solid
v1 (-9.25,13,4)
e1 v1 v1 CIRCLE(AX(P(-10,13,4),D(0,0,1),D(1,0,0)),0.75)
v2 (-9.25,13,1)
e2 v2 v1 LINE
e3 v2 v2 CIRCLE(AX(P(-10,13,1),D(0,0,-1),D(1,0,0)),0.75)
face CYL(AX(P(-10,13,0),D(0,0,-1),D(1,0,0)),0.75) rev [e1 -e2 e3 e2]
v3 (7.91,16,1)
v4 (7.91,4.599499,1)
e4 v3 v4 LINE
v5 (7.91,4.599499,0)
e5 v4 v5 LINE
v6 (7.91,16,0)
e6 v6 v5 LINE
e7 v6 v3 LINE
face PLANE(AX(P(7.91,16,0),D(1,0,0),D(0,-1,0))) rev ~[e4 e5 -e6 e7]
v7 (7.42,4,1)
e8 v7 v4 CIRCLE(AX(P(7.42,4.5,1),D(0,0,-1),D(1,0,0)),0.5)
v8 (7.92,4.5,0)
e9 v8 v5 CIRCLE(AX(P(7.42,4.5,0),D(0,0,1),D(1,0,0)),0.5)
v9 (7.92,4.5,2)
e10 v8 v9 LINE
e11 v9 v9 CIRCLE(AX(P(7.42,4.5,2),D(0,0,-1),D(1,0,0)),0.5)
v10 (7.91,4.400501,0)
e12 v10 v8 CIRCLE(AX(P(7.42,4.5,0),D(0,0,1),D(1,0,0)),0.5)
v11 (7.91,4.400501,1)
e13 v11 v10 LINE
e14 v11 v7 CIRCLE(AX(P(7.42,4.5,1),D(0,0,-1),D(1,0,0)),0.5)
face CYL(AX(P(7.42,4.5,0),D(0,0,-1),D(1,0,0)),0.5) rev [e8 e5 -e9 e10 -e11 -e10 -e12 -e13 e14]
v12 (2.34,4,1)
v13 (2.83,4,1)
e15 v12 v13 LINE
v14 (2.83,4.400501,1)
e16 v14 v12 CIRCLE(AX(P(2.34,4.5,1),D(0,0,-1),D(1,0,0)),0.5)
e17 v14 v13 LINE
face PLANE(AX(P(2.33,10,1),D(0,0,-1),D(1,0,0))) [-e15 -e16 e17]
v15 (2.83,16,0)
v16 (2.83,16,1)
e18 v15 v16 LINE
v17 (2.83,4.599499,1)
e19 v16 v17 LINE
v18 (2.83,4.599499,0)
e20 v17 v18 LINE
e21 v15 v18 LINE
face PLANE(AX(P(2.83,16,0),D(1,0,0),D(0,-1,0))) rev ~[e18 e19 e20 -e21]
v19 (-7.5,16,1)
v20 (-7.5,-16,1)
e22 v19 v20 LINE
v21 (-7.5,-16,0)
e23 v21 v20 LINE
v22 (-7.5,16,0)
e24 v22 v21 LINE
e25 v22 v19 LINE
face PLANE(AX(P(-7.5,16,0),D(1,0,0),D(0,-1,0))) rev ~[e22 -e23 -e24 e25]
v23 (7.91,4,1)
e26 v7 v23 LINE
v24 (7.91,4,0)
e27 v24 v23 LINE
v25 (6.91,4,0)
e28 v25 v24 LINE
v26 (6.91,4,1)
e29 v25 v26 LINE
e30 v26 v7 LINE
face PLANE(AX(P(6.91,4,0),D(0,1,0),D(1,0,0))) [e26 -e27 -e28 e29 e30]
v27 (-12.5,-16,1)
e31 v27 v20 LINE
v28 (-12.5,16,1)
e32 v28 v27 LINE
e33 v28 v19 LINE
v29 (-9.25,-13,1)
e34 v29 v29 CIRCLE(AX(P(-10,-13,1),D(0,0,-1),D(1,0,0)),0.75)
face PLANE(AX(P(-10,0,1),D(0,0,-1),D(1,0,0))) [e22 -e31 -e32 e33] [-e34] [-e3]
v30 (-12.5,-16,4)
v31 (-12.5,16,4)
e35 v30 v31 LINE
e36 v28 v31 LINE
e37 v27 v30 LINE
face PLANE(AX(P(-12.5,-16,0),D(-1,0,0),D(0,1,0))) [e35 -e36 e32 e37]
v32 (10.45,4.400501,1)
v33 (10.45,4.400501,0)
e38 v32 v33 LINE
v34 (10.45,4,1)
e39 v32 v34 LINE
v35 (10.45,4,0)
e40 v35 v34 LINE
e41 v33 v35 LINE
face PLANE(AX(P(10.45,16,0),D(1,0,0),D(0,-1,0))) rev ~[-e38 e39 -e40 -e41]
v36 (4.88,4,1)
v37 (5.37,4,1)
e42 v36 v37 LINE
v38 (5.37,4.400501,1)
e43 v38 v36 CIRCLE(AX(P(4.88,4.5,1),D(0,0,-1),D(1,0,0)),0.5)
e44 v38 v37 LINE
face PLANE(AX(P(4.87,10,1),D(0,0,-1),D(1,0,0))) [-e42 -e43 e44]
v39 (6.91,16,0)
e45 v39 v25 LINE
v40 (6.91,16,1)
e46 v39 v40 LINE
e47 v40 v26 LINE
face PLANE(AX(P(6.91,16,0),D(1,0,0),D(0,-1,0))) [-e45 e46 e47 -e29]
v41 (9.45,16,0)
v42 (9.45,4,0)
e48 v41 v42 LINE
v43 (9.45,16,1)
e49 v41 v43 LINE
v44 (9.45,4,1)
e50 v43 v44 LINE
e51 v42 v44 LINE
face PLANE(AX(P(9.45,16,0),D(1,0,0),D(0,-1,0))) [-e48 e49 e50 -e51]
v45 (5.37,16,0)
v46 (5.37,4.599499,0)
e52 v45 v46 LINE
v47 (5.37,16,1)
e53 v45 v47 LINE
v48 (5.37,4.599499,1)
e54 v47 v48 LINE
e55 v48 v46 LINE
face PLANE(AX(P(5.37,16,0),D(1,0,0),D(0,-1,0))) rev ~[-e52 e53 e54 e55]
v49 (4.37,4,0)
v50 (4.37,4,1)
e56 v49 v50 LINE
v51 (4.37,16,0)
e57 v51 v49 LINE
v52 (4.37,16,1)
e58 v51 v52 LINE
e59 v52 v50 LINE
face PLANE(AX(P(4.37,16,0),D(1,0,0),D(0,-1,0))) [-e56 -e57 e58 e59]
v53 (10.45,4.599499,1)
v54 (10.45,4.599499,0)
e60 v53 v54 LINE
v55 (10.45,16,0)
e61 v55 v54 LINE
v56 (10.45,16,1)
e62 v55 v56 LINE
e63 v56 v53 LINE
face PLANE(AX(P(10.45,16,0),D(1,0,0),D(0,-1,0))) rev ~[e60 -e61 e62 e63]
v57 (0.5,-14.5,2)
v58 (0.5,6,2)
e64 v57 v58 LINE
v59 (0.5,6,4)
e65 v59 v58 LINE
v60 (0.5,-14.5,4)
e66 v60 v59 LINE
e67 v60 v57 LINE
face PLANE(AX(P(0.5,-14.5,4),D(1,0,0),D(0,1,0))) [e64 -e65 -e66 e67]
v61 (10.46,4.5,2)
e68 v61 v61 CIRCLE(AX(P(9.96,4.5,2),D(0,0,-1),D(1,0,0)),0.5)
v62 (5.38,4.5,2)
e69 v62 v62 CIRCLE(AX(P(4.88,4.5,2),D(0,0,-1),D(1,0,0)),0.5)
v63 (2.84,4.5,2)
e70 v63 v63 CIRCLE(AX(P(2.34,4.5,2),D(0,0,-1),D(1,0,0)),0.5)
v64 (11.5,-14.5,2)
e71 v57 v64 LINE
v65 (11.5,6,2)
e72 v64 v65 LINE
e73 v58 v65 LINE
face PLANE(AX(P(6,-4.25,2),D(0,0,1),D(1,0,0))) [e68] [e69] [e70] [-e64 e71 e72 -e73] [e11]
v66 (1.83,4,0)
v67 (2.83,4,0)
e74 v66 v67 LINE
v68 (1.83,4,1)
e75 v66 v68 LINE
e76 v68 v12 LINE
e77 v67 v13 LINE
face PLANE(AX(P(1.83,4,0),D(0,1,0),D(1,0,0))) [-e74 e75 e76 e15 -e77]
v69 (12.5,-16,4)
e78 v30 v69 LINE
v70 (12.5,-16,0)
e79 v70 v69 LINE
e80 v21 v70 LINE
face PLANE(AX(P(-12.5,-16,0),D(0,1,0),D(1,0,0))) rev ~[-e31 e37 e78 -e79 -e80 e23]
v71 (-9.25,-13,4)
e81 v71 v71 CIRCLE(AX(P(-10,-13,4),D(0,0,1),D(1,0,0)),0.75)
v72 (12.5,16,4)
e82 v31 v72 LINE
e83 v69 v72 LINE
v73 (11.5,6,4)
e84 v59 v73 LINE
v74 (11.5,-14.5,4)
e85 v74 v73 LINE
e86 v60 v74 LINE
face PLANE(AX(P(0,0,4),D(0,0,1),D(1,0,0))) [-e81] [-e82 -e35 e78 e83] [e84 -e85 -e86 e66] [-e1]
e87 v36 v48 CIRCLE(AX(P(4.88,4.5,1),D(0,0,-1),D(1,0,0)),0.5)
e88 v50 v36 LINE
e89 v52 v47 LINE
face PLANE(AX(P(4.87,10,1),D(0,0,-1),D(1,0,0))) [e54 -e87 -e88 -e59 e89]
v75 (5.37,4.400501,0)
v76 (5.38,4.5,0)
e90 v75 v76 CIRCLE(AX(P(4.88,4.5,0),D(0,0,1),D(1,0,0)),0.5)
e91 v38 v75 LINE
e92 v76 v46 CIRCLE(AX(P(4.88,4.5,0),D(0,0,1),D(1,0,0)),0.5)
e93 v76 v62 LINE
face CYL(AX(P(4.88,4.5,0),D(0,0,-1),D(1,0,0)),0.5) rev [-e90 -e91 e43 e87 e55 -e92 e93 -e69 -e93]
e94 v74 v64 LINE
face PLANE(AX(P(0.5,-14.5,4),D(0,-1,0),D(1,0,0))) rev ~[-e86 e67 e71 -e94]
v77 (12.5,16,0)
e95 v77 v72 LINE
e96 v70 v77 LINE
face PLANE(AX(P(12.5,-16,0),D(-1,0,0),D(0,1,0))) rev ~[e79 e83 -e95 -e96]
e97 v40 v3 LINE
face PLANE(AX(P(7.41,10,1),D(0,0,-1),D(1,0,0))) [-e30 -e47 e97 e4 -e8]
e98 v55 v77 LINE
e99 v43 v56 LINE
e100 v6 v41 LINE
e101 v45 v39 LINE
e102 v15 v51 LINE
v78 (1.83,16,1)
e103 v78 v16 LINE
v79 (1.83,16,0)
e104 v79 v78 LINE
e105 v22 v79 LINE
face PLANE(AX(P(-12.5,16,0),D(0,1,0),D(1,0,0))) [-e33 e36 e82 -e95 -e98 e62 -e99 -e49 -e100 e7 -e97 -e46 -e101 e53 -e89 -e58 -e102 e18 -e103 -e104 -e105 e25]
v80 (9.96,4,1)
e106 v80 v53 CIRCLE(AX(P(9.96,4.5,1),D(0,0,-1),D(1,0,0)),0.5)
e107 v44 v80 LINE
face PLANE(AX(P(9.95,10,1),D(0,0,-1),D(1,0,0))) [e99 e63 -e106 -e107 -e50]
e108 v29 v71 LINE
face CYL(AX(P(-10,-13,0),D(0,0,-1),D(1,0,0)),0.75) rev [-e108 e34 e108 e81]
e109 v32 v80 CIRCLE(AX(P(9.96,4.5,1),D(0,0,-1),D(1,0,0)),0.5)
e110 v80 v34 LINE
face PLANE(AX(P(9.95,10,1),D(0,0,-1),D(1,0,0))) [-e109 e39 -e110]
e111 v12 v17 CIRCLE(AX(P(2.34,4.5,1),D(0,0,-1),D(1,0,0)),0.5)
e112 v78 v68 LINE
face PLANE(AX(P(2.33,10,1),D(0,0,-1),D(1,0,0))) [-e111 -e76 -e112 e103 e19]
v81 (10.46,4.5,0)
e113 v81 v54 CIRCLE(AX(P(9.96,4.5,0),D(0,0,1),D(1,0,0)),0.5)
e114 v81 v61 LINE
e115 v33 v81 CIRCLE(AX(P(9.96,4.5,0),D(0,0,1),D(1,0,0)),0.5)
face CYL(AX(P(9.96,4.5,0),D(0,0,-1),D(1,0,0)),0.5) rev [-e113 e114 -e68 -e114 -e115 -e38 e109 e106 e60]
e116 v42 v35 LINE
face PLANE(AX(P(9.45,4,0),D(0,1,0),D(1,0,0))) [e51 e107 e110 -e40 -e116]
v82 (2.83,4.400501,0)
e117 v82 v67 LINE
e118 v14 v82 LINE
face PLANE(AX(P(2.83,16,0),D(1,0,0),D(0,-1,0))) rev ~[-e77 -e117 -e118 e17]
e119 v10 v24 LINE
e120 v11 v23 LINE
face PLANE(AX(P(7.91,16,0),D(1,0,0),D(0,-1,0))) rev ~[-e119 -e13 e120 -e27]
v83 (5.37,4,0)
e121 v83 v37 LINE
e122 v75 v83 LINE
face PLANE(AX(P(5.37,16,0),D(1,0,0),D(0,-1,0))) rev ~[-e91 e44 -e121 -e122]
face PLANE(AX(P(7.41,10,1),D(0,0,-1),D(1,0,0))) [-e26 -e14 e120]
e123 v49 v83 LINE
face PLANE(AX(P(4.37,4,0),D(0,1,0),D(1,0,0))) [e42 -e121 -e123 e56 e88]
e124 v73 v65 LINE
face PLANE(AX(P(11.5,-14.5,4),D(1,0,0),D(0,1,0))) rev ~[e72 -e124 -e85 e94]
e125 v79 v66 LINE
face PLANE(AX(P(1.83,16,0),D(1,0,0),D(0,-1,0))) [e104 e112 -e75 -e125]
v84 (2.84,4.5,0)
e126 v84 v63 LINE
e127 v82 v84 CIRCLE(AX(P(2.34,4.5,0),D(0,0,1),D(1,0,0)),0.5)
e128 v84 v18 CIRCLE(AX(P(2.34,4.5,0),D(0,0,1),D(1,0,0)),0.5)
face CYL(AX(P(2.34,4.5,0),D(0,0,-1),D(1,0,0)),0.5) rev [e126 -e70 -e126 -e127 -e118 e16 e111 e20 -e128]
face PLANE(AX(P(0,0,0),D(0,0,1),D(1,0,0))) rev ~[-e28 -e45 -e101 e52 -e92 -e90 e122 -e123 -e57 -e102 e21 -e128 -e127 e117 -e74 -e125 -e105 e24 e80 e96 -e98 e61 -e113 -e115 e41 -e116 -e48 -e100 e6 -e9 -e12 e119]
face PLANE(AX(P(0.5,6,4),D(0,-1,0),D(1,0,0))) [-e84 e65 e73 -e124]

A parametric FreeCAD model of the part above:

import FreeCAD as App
import Part
import Sketcher
Q = App.Units.Quantity


def add_polygon(sketch, points):
    """Adds a closed chain of lines whose ends are joined by coincident constraints."""
    first, n = sketch.GeometryCount, len(points)
    for a, b in zip(points, points[1:] + points[:1]):
        sketch.addGeometry(Part.LineSegment(App.Vector(*a, 0), App.Vector(*b, 0)), False)
    for i in range(n):
        sketch.addConstraint(Sketcher.Constraint("Coincident", first + i, 2, first + (i + 1) % n, 1))

doc = App.newDocument("Part")
body = doc.addObject("PartDesign::Body", "Body")

# Sketch on XY plane
sketch1 = doc.addObject("Sketcher::SketchObject", "Sketch")
body.addObject(sketch1)
sketch1.AttachmentSupport = (doc.XY_Plane, [""])
sketch1.MapMode = "FlatFace"
add_polygon(sketch1, [(-12.5, 16), (-12.5, -16), (12.5, -16), (12.5, 16)])  # lines 0-3
sketch1.addGeometry(Part.Circle(App.Vector(-10, -13, 0), App.Vector(0, 0, 1), 0.8), False)  # 4
sketch1.addGeometry(Part.Circle(App.Vector(-10, 13, 0), App.Vector(0, 0, 1), 0.8), False)  # 5
sketch1.addGeometry(Part.Circle(App.Vector(2.3, 4.5, 0), App.Vector(0, 0, 1), 0.5), False)  # 6
sketch1.addGeometry(Part.Circle(App.Vector(4.9, 4.5, 0), App.Vector(0, 0, 1), 0.5), False)  # 7
sketch1.addGeometry(Part.Circle(App.Vector(7.4, 4.5, 0), App.Vector(0, 0, 1), 0.5), False)  # 8
sketch1.addGeometry(Part.Circle(App.Vector(10, 4.5, 0), App.Vector(0, 0, 1), 0.5), False)  # 9
sketch1.addConstraint([
    Sketcher.Constraint("Vertical", 0),
    Sketcher.Constraint("Horizontal", 1),
    Sketcher.Constraint("Vertical", 2),
    Sketcher.Constraint("Horizontal", 3),
    Sketcher.Constraint("Equal", 4, 5),
    Sketcher.Constraint("Equal", 6, 7),
    Sketcher.Constraint("Equal", 7, 8),
    Sketcher.Constraint("Equal", 8, 9),
    Sketcher.Constraint("Symmetric", 0, 2, 2, 2, -1, 1),
    Sketcher.Constraint("Symmetric", 4, 3, 5, 3, -1),
    Sketcher.Constraint("Horizontal", 6, 3, 7, 3),
    Sketcher.Constraint("Horizontal", 7, 3, 8, 3),
    Sketcher.Constraint("Horizontal", 8, 3, 9, 3),
    Sketcher.Constraint("Diameter", 6, Q("1 mm")),
    Sketcher.Constraint("Diameter", 4, Q("1.5 mm")),
    Sketcher.Constraint("DistanceX", 1, 1, 1, 2, Q("25 mm")),
    Sketcher.Constraint("DistanceY", 0, 2, 0, 1, Q("32 mm")),
    Sketcher.Constraint("DistanceX", 4, 3, -1, 1, Q("10 mm")),
    Sketcher.Constraint("DistanceY", 4, 3, -1, 1, Q("13 mm")),
    Sketcher.Constraint("DistanceY", -1, 1, 6, 3, Q("4.5 mm")),
    Sketcher.Constraint("DistanceX", -1, 1, 6, 3, Q("2.34 mm")),
    Sketcher.Constraint("DistanceX", -1, 1, 7, 3, Q("4.88 mm")),
    Sketcher.Constraint("DistanceX", -1, 1, 8, 3, Q("7.42 mm")),
    Sketcher.Constraint("DistanceX", -1, 1, 9, 3, Q("9.96 mm")),
])
pad1 = doc.addObject("PartDesign::Pad", "Pad")
body.addObject(pad1)
pad1.Profile = sketch1
pad1.Length = 4

# Sketch on XY plane
sketch2 = doc.addObject("Sketcher::SketchObject", "Sketch001")
body.addObject(sketch2)
sketch2.AttachmentSupport = (doc.XY_Plane, [""])
sketch2.MapMode = "FlatFace"
add_polygon(sketch2, [(-12, -16), (-12, 16), (-8, 16), (-8, -16)])  # lines 0-3
sketch2.addConstraint([
    Sketcher.Constraint("Vertical", 0),
    Sketcher.Constraint("Horizontal", 1),
    Sketcher.Constraint("Vertical", 2),
    Sketcher.Constraint("Horizontal", 3),
    Sketcher.Constraint("DistanceX", 1, 1, 1, 2, Q("5 mm")),
    Sketcher.Constraint("DistanceY", 0, 1, 0, 2, Q("32 mm")),
    Sketcher.Constraint("DistanceY", -1, 1, 0, 2, Q("16 mm")),
    Sketcher.Constraint("DistanceX", 0, 2, -1, 1, Q("12.5 mm")),
])
pocket1 = doc.addObject("PartDesign::Pocket", "Pocket")
body.addObject(pocket1)
pocket1.Profile = sketch2
pocket1.Length = 1
pocket1.Reversed = True

# Sketch on XY plane
sketch3 = doc.addObject("Sketcher::SketchObject", "Sketch002")
body.addObject(sketch3)
sketch3.AttachmentSupport = (doc.XY_Plane, [""])
sketch3.MapMode = "FlatFace"
sketch3.AttachmentOffset = App.Placement(App.Vector(0, 0, 4), App.Rotation())
add_polygon(sketch3, [(0, 6), (0, -14), (12, -14), (12, 6)])  # lines 0-3
sketch3.addConstraint([
    Sketcher.Constraint("Vertical", 0),
    Sketcher.Constraint("Horizontal", 1),
    Sketcher.Constraint("Vertical", 2),
    Sketcher.Constraint("Horizontal", 3),
    Sketcher.Constraint("DistanceX", 1, 1, 1, 2, Q("11 mm")),
    Sketcher.Constraint("DistanceY", 0, 2, 0, 1, Q("20.5 mm")),
    Sketcher.Constraint("DistanceY", -1, 1, 2, 2, Q("6 mm")),
    Sketcher.Constraint("DistanceX", -1, 1, 0, 2, Q("0.5 mm")),
])
pocket2 = doc.addObject("PartDesign::Pocket", "Pocket001")
body.addObject(pocket2)
pocket2.Profile = sketch3
pocket2.Length = 2

# Sketch on XY plane
sketch4 = doc.addObject("Sketcher::SketchObject", "Sketch003")
body.addObject(sketch4)
sketch4.AttachmentSupport = (doc.XY_Plane, [""])
sketch4.MapMode = "FlatFace"
add_polygon(sketch4, [(1.8, 4), (1.8, 16), (2.8, 16), (2.8, 4)])  # lines 0-3
add_polygon(sketch4, [(4.4, 4), (4.4, 16), (5.4, 16), (5.4, 4)])  # lines 4-7
add_polygon(sketch4, [(6.9, 4), (6.9, 16), (7.9, 16), (7.9, 4)])  # lines 8-11
add_polygon(sketch4, [(9.4, 4), (9.4, 16), (10.4, 16), (10.4, 4)])  # lines 12-15
sketch4.addConstraint([
    Sketcher.Constraint("Vertical", 0),
    Sketcher.Constraint("Horizontal", 1),
    Sketcher.Constraint("Vertical", 2),
    Sketcher.Constraint("Horizontal", 3),
    Sketcher.Constraint("Vertical", 4),
    Sketcher.Constraint("Horizontal", 5),
    Sketcher.Constraint("Vertical", 6),
    Sketcher.Constraint("Horizontal", 7),
    Sketcher.Constraint("Vertical", 8),
    Sketcher.Constraint("Horizontal", 9),
    Sketcher.Constraint("Vertical", 10),
    Sketcher.Constraint("Horizontal", 11),
    Sketcher.Constraint("Vertical", 12),
    Sketcher.Constraint("Horizontal", 13),
    Sketcher.Constraint("Vertical", 14),
    Sketcher.Constraint("Horizontal", 15),
    Sketcher.Constraint("Horizontal", 1, 2, 4, 2),
    Sketcher.Constraint("Horizontal", 3, 2, 6, 2),
    Sketcher.Constraint("Horizontal", 5, 2, 8, 2),
    Sketcher.Constraint("Horizontal", 7, 2, 10, 2),
    Sketcher.Constraint("Horizontal", 9, 2, 12, 2),
    Sketcher.Constraint("Horizontal", 11, 2, 14, 2),
    Sketcher.Constraint("Equal", 3, 5),
    Sketcher.Constraint("Equal", 7, 9),
    Sketcher.Constraint("Equal", 11, 13),
    Sketcher.Constraint("DistanceX", 1, 1, 1, 2, Q("1 mm")),
    Sketcher.Constraint("DistanceY", 0, 1, 0, 2, Q("12 mm")),
    Sketcher.Constraint("DistanceY", -1, 1, 0, 2, Q("16 mm")),
    Sketcher.Constraint("DistanceX", -1, 1, 0, 2, Q("1.83 mm")),
    Sketcher.Constraint("DistanceX", -1, 1, 4, 2, Q("4.37 mm")),
    Sketcher.Constraint("DistanceX", -1, 1, 8, 2, Q("6.91 mm")),
    Sketcher.Constraint("DistanceX", -1, 1, 12, 2, Q("9.45 mm")),
])
pocket3 = doc.addObject("PartDesign::Pocket", "Pocket002")
body.addObject(pocket3)
pocket3.Profile = sketch4
pocket3.Length = 1
pocket3.Reversed = True

doc.recompute()
